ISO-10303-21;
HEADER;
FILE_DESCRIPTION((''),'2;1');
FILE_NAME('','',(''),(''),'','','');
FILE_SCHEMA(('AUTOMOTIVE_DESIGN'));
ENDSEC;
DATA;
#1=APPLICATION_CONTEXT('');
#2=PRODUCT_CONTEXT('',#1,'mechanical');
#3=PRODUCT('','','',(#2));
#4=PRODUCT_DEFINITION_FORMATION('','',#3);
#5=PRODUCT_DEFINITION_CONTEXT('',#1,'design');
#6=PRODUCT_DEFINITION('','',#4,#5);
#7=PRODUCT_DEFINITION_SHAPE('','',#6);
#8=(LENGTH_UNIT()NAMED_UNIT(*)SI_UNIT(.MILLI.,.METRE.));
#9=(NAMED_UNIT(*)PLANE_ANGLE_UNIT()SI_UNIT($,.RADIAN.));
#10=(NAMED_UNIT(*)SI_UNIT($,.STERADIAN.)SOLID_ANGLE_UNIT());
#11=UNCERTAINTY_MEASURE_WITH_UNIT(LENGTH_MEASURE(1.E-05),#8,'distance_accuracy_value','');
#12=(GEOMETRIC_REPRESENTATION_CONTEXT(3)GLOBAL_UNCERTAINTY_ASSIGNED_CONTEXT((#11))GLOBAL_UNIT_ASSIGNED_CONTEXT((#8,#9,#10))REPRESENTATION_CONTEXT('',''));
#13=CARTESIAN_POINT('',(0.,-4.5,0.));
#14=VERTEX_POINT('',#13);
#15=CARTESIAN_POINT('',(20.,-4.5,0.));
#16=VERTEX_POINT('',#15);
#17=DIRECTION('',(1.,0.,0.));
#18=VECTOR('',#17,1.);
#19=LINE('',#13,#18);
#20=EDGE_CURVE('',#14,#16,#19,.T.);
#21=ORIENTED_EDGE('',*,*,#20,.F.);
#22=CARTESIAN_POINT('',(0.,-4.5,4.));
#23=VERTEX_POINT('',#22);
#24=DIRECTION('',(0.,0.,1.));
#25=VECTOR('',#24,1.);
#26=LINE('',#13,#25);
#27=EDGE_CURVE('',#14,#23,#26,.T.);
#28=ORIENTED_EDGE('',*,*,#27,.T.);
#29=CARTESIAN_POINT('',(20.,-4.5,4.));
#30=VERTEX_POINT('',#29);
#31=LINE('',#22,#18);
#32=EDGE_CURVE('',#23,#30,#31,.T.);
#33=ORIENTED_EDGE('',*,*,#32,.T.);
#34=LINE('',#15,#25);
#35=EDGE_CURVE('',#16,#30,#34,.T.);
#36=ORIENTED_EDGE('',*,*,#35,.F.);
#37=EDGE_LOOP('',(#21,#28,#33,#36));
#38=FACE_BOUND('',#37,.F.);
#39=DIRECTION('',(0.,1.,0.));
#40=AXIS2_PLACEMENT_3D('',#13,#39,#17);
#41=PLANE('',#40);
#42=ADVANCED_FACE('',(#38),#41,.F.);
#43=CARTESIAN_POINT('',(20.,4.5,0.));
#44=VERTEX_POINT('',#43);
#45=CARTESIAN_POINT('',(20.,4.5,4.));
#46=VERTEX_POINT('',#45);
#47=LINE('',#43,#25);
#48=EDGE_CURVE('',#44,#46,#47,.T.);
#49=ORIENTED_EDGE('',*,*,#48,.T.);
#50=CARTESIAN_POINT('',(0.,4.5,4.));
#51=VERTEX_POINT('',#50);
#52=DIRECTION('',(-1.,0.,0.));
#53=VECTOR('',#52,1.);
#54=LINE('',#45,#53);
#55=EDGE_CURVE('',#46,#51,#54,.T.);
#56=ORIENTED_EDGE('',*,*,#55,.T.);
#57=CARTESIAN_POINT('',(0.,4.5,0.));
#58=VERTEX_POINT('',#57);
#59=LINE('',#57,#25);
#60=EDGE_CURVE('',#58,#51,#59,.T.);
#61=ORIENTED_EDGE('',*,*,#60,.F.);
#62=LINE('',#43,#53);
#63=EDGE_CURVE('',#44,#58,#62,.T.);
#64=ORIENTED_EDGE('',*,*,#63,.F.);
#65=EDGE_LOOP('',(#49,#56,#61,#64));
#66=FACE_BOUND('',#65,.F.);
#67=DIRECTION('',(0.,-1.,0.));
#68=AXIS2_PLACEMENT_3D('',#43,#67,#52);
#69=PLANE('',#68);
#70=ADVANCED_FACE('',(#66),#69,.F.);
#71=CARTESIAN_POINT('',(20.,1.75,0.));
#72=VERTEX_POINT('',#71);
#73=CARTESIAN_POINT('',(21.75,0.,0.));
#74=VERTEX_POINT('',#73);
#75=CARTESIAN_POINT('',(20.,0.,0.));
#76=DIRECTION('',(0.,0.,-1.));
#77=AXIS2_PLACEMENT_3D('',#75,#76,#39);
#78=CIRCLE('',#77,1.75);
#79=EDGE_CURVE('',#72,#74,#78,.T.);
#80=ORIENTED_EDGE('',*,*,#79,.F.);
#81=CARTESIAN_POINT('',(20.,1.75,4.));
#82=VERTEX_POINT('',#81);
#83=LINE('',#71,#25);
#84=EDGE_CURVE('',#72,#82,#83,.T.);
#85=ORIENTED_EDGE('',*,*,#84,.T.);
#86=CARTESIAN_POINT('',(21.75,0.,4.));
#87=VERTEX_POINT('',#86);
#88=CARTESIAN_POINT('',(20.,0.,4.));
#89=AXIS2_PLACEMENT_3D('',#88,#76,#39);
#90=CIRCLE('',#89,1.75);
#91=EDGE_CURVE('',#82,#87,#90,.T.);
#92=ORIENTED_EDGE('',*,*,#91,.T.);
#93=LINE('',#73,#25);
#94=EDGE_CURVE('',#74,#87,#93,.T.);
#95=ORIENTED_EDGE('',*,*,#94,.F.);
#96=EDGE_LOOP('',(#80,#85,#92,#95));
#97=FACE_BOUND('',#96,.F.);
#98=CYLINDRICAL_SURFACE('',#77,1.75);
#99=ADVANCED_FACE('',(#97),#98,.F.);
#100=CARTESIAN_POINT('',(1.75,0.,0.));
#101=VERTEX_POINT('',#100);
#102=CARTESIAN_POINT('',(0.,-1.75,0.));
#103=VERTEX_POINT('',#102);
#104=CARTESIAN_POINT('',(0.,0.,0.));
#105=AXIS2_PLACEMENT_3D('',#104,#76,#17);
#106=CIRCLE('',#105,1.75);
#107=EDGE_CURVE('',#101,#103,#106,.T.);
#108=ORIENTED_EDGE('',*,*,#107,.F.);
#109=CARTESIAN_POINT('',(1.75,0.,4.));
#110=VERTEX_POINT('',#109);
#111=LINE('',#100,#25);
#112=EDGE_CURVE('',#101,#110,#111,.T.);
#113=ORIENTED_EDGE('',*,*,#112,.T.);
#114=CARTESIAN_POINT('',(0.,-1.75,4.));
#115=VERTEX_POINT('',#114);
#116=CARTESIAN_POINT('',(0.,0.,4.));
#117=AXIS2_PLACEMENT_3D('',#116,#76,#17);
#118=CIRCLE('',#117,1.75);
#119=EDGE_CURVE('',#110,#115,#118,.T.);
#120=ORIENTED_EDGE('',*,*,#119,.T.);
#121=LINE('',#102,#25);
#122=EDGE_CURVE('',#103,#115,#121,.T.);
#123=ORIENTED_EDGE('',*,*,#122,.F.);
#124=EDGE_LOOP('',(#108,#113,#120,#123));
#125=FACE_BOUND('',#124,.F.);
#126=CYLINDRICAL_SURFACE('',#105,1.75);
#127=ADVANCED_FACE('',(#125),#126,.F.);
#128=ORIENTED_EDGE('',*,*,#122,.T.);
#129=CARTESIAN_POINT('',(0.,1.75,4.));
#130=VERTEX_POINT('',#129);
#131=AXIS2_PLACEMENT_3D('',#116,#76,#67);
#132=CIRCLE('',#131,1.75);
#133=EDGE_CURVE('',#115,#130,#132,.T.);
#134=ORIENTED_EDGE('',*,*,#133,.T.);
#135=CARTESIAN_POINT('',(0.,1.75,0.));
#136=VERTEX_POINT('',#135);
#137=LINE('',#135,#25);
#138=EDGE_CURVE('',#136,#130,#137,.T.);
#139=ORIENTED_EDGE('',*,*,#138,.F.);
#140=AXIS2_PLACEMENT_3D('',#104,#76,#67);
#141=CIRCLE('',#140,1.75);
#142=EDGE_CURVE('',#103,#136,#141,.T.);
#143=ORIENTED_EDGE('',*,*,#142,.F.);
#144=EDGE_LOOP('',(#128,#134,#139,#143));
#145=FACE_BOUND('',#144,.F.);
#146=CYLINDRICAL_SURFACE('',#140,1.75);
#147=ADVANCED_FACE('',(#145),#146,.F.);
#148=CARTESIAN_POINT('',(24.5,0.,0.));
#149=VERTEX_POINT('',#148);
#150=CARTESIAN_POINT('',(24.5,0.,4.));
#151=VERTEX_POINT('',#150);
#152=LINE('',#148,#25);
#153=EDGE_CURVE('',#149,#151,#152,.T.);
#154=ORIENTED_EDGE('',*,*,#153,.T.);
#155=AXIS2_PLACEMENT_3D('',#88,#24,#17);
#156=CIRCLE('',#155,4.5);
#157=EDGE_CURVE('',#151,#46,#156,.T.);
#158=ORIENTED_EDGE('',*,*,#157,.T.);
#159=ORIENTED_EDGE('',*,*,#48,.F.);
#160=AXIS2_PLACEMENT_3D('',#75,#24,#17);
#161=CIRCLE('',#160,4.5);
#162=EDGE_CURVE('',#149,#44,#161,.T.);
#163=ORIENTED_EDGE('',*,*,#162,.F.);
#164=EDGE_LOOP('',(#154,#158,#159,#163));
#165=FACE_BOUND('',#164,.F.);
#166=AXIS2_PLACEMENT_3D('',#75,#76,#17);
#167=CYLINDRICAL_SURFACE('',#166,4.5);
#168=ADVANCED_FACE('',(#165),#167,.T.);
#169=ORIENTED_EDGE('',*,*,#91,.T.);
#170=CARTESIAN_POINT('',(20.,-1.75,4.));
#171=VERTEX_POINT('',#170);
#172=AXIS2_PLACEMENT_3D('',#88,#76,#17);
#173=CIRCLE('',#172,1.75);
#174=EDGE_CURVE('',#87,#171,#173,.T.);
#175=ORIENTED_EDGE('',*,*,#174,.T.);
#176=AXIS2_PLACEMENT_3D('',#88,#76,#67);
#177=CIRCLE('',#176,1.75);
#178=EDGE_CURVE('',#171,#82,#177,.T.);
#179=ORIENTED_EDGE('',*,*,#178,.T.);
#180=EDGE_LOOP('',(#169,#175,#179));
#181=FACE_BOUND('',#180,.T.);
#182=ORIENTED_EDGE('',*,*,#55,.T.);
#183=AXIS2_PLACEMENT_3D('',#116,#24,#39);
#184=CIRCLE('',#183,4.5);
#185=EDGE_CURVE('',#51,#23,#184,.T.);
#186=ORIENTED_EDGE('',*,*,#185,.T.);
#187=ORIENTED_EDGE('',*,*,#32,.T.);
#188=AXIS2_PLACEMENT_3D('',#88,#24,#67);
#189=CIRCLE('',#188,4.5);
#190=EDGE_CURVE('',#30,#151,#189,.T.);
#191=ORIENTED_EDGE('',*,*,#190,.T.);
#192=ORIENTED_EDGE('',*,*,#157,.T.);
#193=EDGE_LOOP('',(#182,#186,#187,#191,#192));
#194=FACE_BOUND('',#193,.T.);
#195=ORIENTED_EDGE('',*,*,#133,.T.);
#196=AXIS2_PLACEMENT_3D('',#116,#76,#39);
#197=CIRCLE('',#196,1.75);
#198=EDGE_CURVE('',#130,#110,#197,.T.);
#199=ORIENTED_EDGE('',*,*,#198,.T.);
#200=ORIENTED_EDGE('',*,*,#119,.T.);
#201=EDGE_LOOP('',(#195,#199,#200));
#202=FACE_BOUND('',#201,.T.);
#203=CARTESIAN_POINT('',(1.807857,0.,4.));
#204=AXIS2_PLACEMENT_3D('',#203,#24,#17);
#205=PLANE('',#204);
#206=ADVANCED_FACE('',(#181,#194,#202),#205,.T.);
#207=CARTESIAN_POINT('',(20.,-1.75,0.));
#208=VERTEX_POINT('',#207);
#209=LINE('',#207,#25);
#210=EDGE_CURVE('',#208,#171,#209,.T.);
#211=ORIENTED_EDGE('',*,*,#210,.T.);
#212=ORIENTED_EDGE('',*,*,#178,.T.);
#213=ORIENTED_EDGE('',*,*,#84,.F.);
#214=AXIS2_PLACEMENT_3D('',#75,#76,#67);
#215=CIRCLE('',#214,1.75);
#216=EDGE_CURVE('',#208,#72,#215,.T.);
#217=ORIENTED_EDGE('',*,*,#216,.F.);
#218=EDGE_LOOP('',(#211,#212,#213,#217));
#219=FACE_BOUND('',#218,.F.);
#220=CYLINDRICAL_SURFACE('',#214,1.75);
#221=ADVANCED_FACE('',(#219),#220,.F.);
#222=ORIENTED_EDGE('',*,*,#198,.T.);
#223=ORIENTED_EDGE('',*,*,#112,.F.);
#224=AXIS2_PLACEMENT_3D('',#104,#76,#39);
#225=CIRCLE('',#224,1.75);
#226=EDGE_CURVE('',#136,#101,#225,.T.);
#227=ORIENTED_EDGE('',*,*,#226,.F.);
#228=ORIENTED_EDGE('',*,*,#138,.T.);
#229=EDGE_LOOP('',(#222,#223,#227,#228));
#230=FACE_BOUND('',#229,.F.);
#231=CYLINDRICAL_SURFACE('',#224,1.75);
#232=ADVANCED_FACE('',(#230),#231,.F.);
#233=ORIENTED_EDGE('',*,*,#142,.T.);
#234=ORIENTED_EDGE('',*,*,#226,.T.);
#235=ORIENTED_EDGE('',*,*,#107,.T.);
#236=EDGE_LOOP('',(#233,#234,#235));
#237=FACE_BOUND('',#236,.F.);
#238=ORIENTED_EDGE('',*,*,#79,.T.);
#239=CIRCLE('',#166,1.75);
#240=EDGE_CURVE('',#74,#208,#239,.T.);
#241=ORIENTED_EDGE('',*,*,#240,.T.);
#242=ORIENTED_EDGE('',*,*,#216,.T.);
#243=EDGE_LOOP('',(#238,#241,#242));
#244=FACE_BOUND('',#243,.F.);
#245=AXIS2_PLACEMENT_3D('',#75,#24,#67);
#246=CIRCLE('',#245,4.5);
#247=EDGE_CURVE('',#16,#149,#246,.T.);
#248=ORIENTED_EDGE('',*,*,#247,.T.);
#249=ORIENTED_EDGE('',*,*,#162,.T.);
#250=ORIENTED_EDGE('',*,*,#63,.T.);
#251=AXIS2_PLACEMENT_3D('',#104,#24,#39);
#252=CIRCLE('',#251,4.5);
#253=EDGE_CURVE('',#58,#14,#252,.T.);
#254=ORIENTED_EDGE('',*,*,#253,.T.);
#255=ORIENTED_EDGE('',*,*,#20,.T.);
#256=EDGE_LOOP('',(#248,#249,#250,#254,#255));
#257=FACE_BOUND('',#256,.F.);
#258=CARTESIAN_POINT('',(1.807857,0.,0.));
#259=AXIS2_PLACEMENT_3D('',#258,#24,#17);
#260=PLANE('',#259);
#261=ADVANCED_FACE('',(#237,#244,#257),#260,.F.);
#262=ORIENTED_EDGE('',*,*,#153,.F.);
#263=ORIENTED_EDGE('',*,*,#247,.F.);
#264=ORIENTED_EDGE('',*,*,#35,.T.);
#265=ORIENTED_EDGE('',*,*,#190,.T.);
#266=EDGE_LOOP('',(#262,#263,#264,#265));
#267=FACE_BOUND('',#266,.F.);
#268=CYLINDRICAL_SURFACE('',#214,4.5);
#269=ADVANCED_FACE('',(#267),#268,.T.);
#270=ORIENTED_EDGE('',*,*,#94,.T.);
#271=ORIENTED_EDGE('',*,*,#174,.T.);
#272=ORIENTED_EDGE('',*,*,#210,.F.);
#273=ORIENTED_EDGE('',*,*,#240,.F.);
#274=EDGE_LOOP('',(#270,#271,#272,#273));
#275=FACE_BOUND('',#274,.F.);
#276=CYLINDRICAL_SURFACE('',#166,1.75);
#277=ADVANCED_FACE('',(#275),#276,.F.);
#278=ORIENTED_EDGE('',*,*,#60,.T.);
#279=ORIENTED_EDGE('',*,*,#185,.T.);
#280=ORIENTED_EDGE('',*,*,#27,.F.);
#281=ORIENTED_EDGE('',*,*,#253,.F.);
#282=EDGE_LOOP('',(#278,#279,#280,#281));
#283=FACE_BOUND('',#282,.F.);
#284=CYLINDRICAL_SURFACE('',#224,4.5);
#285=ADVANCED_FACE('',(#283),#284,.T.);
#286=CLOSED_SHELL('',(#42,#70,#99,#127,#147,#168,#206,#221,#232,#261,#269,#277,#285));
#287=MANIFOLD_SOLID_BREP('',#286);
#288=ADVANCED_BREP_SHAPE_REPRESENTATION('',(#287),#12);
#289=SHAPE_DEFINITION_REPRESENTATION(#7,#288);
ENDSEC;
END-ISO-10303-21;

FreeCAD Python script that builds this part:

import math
import FreeCAD as App
import Part
import Sketcher

doc = App.newDocument("Part")
body = doc.addObject("PartDesign::Body", "Body")

# Sketch on XY plane
sketch1 = body.newObject("Sketcher::SketchObject", "Sketch")
sketch1.AttachmentSupport = (doc.getObject("XY_Plane"), [""])
sketch1.MapMode = "FlatFace"
sketch1.addGeometry([
    Part.LineSegment(App.Vector(0, -4.5, 0), App.Vector(20, -4.5, 0)),  # 0
    Part.ArcOfCircle(Part.Circle(App.Vector(20, 0, 0), App.Vector(0, 0, 1), 4.5), math.radians(-90), math.radians(0)),  # 1
    Part.ArcOfCircle(Part.Circle(App.Vector(20, 0, 0), App.Vector(0, 0, 1), 4.5), math.radians(0), math.radians(90)),  # 2
    Part.LineSegment(App.Vector(20, 4.5, 0), App.Vector(0, 4.5, 0)),  # 3
    Part.ArcOfCircle(Part.Circle(App.Vector(0, 0, 0), App.Vector(0, 0, 1), 4.5), math.radians(90), math.radians(270)),  # 4
    Part.ArcOfCircle(Part.Circle(App.Vector(0, 0, 0), App.Vector(0, 0, 1), 1.75), math.radians(0), math.radians(90)),  # 5
    Part.ArcOfCircle(Part.Circle(App.Vector(0, 0, 0), App.Vector(0, 0, 1), 1.75), math.radians(-90), math.radians(0)),  # 6
    Part.ArcOfCircle(Part.Circle(App.Vector(0, 0, 0), App.Vector(0, 0, 1), 1.75), math.radians(90), math.radians(270)),  # 7
    Part.ArcOfCircle(Part.Circle(App.Vector(20, 0, 0), App.Vector(0, 0, 1), 1.75), math.radians(90), math.radians(270)),  # 8
    Part.ArcOfCircle(Part.Circle(App.Vector(20, 0, 0), App.Vector(0, 0, 1), 1.75), math.radians(0), math.radians(90)),  # 9
    Part.ArcOfCircle(Part.Circle(App.Vector(20, 0, 0), App.Vector(0, 0, 1), 1.75), math.radians(-90), math.radians(0)),  # 10
], False)
sketch1.addConstraint([
    Sketcher.Constraint("Tangent", 0, 2, 1, 1),
    Sketcher.Constraint("Tangent", 1, 2, 2, 1),
    Sketcher.Constraint("Tangent", 2, 2, 3, 1),
    Sketcher.Constraint("Tangent", 3, 2, 4, 1),
    Sketcher.Constraint("Tangent", 4, 2, 0, 1),
    Sketcher.Constraint("Tangent", 5, 1, 6, 2),
    Sketcher.Constraint("Tangent", 6, 1, 7, 2),
    Sketcher.Constraint("Tangent", 7, 1, 5, 2),
    Sketcher.Constraint("Tangent", 8, 1, 9, 2),
    Sketcher.Constraint("Tangent", 9, 1, 10, 2),
    Sketcher.Constraint("Tangent", 10, 1, 8, 2),
    Sketcher.Constraint("Horizontal", 0),
    Sketcher.Constraint("Horizontal", 3),
    Sketcher.Constraint("Coincident", 4, 3, -1, 1),
    Sketcher.Constraint("Coincident", 5, 3, -1, 1),
    Sketcher.Constraint("Coincident", 8, 3, 1, 3),
    Sketcher.Constraint("Equal", 1, 2),
    Sketcher.Constraint("Equal", 7, 8),
    Sketcher.Constraint("PointOnObject", 1, 2, -1),
    Sketcher.Constraint("PointOnObject", 5, 1, -1),
    Sketcher.Constraint("PointOnObject", 6, 1, -2),
    Sketcher.Constraint("PointOnObject", 7, 1, -2),
    Sketcher.Constraint("PointOnObject", 9, 1, -1),
    Sketcher.Constraint("Vertical", 2, 2, 8, 1),
    Sketcher.Constraint("Vertical", 8, 1, 10, 1),
    Sketcher.Constraint("Radius", 1, 4.5),
    Sketcher.Constraint("DistanceX", 0, 1, 0, 2, 20.0),
    Sketcher.Constraint("Radius", 5, 1.75),
])
pad1 = body.newObject("PartDesign::Pad", "Pad")
pad1.Profile = sketch1
pad1.Length = 4

doc.recompute()
